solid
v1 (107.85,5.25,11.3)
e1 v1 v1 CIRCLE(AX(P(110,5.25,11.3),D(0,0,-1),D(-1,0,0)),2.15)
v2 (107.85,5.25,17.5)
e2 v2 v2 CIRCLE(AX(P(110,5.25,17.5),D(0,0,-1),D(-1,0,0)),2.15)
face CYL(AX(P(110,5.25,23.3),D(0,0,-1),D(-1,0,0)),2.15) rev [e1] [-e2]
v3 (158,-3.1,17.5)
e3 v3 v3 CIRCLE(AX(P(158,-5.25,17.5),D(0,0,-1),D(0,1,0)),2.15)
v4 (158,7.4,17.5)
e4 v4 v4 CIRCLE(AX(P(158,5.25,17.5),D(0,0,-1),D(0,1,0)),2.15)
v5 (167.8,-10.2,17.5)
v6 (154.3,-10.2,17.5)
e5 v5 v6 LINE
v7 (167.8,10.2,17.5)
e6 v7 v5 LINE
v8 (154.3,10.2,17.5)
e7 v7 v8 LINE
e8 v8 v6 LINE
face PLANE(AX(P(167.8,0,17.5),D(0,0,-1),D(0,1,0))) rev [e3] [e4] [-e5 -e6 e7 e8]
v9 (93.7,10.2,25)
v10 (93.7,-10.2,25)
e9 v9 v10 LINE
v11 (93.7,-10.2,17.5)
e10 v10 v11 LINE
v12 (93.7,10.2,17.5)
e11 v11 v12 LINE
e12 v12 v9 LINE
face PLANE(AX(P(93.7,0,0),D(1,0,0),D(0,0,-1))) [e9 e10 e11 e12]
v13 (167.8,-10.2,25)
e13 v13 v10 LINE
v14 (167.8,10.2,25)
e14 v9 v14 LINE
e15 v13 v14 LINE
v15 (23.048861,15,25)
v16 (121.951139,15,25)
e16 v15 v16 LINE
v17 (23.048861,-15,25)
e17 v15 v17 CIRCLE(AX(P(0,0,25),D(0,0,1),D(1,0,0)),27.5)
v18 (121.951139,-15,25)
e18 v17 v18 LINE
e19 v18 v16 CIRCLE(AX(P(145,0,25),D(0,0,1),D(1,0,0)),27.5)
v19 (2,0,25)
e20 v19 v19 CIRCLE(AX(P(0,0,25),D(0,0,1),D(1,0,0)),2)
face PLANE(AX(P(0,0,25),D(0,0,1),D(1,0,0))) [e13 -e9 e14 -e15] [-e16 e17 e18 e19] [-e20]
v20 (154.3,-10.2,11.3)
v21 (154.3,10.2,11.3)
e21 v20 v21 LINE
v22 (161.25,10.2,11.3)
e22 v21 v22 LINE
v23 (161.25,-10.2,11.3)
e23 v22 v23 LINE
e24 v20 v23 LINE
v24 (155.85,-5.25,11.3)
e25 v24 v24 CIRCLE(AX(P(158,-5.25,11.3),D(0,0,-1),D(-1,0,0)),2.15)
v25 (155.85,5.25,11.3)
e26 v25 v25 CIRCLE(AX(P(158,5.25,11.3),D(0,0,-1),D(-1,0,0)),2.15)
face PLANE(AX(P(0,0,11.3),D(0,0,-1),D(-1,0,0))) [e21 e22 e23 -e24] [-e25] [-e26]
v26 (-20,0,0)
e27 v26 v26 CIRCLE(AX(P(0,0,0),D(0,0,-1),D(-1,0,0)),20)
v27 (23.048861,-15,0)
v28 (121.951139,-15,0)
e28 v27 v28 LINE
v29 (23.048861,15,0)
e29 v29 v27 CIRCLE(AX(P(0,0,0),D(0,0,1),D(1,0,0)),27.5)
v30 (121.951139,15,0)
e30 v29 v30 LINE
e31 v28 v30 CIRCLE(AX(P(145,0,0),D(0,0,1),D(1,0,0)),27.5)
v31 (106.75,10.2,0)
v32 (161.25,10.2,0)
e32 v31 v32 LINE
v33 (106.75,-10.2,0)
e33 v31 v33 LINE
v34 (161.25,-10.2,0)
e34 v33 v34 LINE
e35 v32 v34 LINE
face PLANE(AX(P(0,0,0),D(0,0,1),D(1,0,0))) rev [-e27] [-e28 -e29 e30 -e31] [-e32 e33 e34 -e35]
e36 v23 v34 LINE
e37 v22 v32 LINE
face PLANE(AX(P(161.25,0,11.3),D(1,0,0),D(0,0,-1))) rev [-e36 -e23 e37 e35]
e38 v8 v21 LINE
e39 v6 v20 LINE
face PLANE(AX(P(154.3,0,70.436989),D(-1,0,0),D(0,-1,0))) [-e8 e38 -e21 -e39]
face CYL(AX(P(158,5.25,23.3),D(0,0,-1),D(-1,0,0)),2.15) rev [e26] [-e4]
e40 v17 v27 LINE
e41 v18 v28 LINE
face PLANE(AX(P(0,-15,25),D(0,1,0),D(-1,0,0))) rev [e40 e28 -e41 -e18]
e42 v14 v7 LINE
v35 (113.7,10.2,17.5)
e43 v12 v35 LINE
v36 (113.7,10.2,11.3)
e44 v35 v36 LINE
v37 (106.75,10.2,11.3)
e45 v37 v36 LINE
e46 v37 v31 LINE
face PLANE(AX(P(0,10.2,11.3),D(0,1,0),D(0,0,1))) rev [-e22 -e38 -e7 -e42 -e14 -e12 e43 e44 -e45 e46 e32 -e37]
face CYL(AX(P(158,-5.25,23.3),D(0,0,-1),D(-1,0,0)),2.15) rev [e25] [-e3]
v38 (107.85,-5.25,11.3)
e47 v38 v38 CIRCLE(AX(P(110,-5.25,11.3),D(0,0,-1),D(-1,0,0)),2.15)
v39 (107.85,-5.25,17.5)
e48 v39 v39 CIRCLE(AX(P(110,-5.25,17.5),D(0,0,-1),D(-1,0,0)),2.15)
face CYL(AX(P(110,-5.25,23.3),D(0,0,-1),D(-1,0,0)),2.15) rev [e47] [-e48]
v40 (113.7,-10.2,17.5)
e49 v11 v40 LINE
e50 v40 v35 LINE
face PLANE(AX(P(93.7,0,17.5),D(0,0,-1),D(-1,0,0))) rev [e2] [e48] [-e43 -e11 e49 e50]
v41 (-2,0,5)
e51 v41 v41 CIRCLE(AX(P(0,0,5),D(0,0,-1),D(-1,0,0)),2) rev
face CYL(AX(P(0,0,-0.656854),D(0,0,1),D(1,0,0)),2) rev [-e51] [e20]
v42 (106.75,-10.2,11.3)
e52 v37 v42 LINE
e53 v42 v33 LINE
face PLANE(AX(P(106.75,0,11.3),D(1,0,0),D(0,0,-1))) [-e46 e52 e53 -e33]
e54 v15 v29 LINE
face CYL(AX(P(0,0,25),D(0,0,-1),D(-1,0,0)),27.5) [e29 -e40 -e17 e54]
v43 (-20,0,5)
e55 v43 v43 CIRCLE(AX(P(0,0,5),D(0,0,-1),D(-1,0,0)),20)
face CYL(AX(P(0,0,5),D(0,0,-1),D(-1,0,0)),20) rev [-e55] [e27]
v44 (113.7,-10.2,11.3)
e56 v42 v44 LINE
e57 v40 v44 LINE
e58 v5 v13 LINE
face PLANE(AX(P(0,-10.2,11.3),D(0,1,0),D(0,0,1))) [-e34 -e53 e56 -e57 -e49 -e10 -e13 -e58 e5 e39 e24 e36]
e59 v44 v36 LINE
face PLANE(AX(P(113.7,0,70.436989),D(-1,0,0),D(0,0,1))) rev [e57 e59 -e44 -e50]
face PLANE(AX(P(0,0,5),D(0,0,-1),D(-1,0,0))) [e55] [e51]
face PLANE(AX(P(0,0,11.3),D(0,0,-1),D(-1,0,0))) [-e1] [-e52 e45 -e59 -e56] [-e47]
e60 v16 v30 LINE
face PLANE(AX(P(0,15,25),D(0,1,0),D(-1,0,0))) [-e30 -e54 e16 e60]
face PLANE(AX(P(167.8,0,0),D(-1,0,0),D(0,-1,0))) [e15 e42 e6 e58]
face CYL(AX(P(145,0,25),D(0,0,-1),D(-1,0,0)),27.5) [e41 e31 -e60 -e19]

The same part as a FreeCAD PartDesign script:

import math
import FreeCAD as App
import Part
import Sketcher

V = App.Vector

doc = App.newDocument("Part")
body = doc.addObject("PartDesign::Body", "Body")

# Sketch on XY plane
sketch1 = body.newObject("Sketcher::SketchObject", "Sketch")
sketch1.AttachmentSupport = (doc.getObject("XY_Plane"), [""])
sketch1.MapMode = "FlatFace"
sketch1.addGeometry(Part.LineSegment(V(23, -15, 0), V(122, -15, 0)), False)
sketch1.addGeometry(Part.ArcOfCircle(Part.Circle(V(145, 0, 0), V(0, 0, 1), 28), math.radians(-147), math.radians(0)), False)
sketch1.addGeometry(Part.ArcOfCircle(Part.Circle(V(145, 0, 0), V(0, 0, 1), 28), math.radians(0), math.radians(147)), False)
sketch1.addGeometry(Part.LineSegment(V(122, 15, 0), V(23, 15, 0)), False)
sketch1.addGeometry(Part.ArcOfCircle(Part.Circle(V(0, 0, 0), V(0, 0, 1), 28), math.radians(33), math.radians(327)), False)
sketch1.addConstraint(Sketcher.Constraint("Coincident", 0, 2, 1, 1))
sketch1.addConstraint(Sketcher.Constraint("Tangent", 1, 2, 2, 1))
sketch1.addConstraint(Sketcher.Constraint("Coincident", 2, 2, 3, 1))
sketch1.addConstraint(Sketcher.Constraint("Coincident", 3, 2, 4, 1))
sketch1.addConstraint(Sketcher.Constraint("Coincident", 4, 2, 0, 1))
sketch1.addConstraint(Sketcher.Constraint("Horizontal", 0))
sketch1.addConstraint(Sketcher.Constraint("Horizontal", 3))
sketch1.addConstraint(Sketcher.Constraint("Coincident", 4, 3, -1, 1))
sketch1.addConstraint(Sketcher.Constraint("Equal", 1, 2))
sketch1.addConstraint(Sketcher.Constraint("Equal", 2, 4))
sketch1.addConstraint(Sketcher.Constraint("Symmetric", 0, 2, 2, 2, -1))
sketch1.addConstraint(Sketcher.Constraint("PointOnObject", 1, 2, -1))
sketch1.addConstraint(Sketcher.Constraint("Radius", 1, 27.5))
sketch1.addConstraint(Sketcher.Constraint("DistanceX", -1, 1, 1, 3, 145.0))
sketch1.addConstraint(Sketcher.Constraint("DistanceY", 0, 2, -1, 1, 15.0))
pad1 = body.newObject("PartDesign::Pad", "Pad")
pad1.Profile = sketch1
pad1.Length = 25

# Sketch on XY plane
sketch2 = body.newObject("Sketcher::SketchObject", "Sketch001")
sketch2.AttachmentSupport = (doc.getObject("XY_Plane"), [""])
sketch2.MapMode = "FlatFace"
sketch2.addGeometry(Part.Circle(V(0, 0, 0), V(0, 0, 1), 20), False)
sketch2.addConstraint(Sketcher.Constraint("Coincident", 0, 3, -1, 1))
sketch2.addConstraint(Sketcher.Constraint("Diameter", 0, 40.0))
pocket1 = body.newObject("PartDesign::Pocket", "Pocket")
pocket1.Profile = sketch2
pocket1.Length = 5
pocket1.Reversed = True

# Sketch on XY plane
sketch3 = body.newObject("Sketcher::SketchObject", "Sketch002")
sketch3.AttachmentSupport = (doc.getObject("XY_Plane"), [""])
sketch3.MapMode = "FlatFace"
sketch3.AttachmentOffset = App.Placement(V(0, 0, 25), App.Rotation())
sketch3.addGeometry(Part.Circle(V(0, 0, 0), V(0, 0, 1), 2), False)
sketch3.addConstraint(Sketcher.Constraint("Coincident", 0, 3, -1, 1))
sketch3.addConstraint(Sketcher.Constraint("Diameter", 0, 4.0))
pocket2 = body.newObject("PartDesign::Pocket", "Pocket001")
pocket2.Profile = sketch3
pocket2.Length = 20

# Sketch on XY plane
sketch4 = body.newObject("Sketcher::SketchObject", "Sketch003")
sketch4.AttachmentSupport = (doc.getObject("XY_Plane"), [""])
sketch4.MapMode = "FlatFace"
sketch4.addGeometry(Part.LineSegment(V(161, 10, 0), V(161, -10, 0)), False)
sketch4.addGeometry(Part.LineSegment(V(161, -10, 0), V(107, -10, 0)), False)
sketch4.addGeometry(Part.LineSegment(V(107, -10, 0), V(107, 10, 0)), False)
sketch4.addGeometry(Part.LineSegment(V(107, 10, 0), V(161, 10, 0)), False)
sketch4.addConstraint(Sketcher.Constraint("Coincident", 0, 2, 1, 1))
sketch4.addConstraint(Sketcher.Constraint("Coincident", 1, 2, 2, 1))
sketch4.addConstraint(Sketcher.Constraint("Coincident", 2, 2, 3, 1))
sketch4.addConstraint(Sketcher.Constraint("Coincident", 3, 2, 0, 1))
sketch4.addConstraint(Sketcher.Constraint("Vertical", 0))
sketch4.addConstraint(Sketcher.Constraint("Horizontal", 1))
sketch4.addConstraint(Sketcher.Constraint("Vertical", 2))
sketch4.addConstraint(Sketcher.Constraint("Horizontal", 3))
sketch4.addConstraint(Sketcher.Constraint("DistanceX", 1, 2, 1, 1, 54.5))
sketch4.addConstraint(Sketcher.Constraint("DistanceY", 0, 2, 0, 1, 20.4))
sketch4.addConstraint(Sketcher.Constraint("DistanceY", 0, 2, -1, 1, 10.2))
sketch4.addConstraint(Sketcher.Constraint("DistanceX", -1, 1, 0, 2, 161.25))
pocket3 = body.newObject("PartDesign::Pocket", "Pocket002")
pocket3.Profile = sketch4
pocket3.Length = 11.3
pocket3.Reversed = True

# Sketch on XY plane
sketch5 = body.newObject("Sketcher::SketchObject", "Sketch004")
sketch5.AttachmentSupport = (doc.getObject("XY_Plane"), [""])
sketch5.MapMode = "FlatFace"
sketch5.AttachmentOffset = App.Placement(V(0, 0, 11.3), App.Rotation())
sketch5.addGeometry(Part.LineSegment(V(154, -10, 0), V(114, -10, 0)), False)
sketch5.addGeometry(Part.LineSegment(V(114, -10, 0), V(114, 10, 0)), False)
sketch5.addGeometry(Part.LineSegment(V(114, 10, 0), V(154, 10, 0)), False)
sketch5.addGeometry(Part.LineSegment(V(154, 10, 0), V(154, -10, 0)), False)
sketch5.addConstraint(Sketcher.Constraint("Coincident", 0, 2, 1, 1))
sketch5.addConstraint(Sketcher.Constraint("Coincident", 1, 2, 2, 1))
sketch5.addConstraint(Sketcher.Constraint("Coincident", 2, 2, 3, 1))
sketch5.addConstraint(Sketcher.Constraint("Coincident", 3, 2, 0, 1))
sketch5.addConstraint(Sketcher.Constraint("Horizontal", 0))
sketch5.addConstraint(Sketcher.Constraint("Vertical", 1))
sketch5.addConstraint(Sketcher.Constraint("Horizontal", 2))
sketch5.addConstraint(Sketcher.Constraint("Vertical", 3))
sketch5.addConstraint(Sketcher.Constraint("DistanceX", 0, 2, 0, 1, 40.6))
sketch5.addConstraint(Sketcher.Constraint("DistanceY", 1, 1, 1, 2, 20.4))
sketch5.addConstraint(Sketcher.Constraint("DistanceX", -1, 1, 0, 2, 113.7))
sketch5.addConstraint(Sketcher.Constraint("DistanceY", 0, 2, -1, 1, 10.2))
pocket4 = body.newObject("PartDesign::Pocket", "Pocket003")
pocket4.Profile = sketch5
pocket4.Length = 13.7
pocket4.Reversed = True

# Sketch on YZ plane
sketch6 = body.newObject("Sketcher::SketchObject", "Sketch005")
sketch6.AttachmentSupport = (doc.getObject("YZ_Plane"), [""])
sketch6.MapMode = "FlatFace"
sketch6.AttachmentOffset = App.Placement(V(0, 0, 154.3), App.Rotation())
sketch6.addGeometry(Part.LineSegment(V(10, 18, 0), V(-10, 18, 0)), False)
sketch6.addGeometry(Part.LineSegment(V(-10, 18, 0), V(-10, 25, 0)), False)
sketch6.addGeometry(Part.LineSegment(V(-10, 25, 0), V(10, 25, 0)), False)
sketch6.addGeometry(Part.LineSegment(V(10, 25, 0), V(10, 18, 0)), False)
sketch6.addConstraint(Sketcher.Constraint("Coincident", 0, 2, 1, 1))
sketch6.addConstraint(Sketcher.Constraint("Coincident", 1, 2, 2, 1))
sketch6.addConstraint(Sketcher.Constraint("Coincident", 2, 2, 3, 1))
sketch6.addConstraint(Sketcher.Constraint("Coincident", 3, 2, 0, 1))
sketch6.addConstraint(Sketcher.Constraint("Horizontal", 0))
sketch6.addConstraint(Sketcher.Constraint("Vertical", 1))
sketch6.addConstraint(Sketcher.Constraint("Horizontal", 2))
sketch6.addConstraint(Sketcher.Constraint("Vertical", 3))
sketch6.addConstraint(Sketcher.Constraint("DistanceX", 0, 2, 0, 1, 20.4))
sketch6.addConstraint(Sketcher.Constraint("DistanceY", 1, 1, 1, 2, 7.5))
sketch6.addConstraint(Sketcher.Constraint("DistanceY", -1, 1, 1, 2, 25.0))
sketch6.addConstraint(Sketcher.Constraint("DistanceX", 0, 2, -1, 1, 10.2))
pocket5 = body.newObject("PartDesign::Pocket", "Pocket004")
pocket5.Profile = sketch6
pocket5.Length = 13.5
pocket5.Reversed = True

# Sketch on YZ plane
sketch7 = body.newObject("Sketcher::SketchObject", "Sketch006")
sketch7.AttachmentSupport = (doc.getObject("YZ_Plane"), [""])
sketch7.MapMode = "FlatFace"
sketch7.AttachmentOffset = App.Placement(V(0, 0, 113.7), App.Rotation())
sketch7.addGeometry(Part.LineSegment(V(10, 25, 0), V(-10, 25, 0)), False)
sketch7.addGeometry(Part.LineSegment(V(-10, 25, 0), V(-10, 18, 0)), False)
sketch7.addGeometry(Part.LineSegment(V(-10, 18, 0), V(10, 18, 0)), False)
sketch7.addGeometry(Part.LineSegment(V(10, 18, 0), V(10, 25, 0)), False)
sketch7.addConstraint(Sketcher.Constraint("Coincident", 0, 2, 1, 1))
sketch7.addConstraint(Sketcher.Constraint("Coincident", 1, 2, 2, 1))
sketch7.addConstraint(Sketcher.Constraint("Coincident", 2, 2, 3, 1))
sketch7.addConstraint(Sketcher.Constraint("Coincident", 3, 2, 0, 1))
sketch7.addConstraint(Sketcher.Constraint("Horizontal", 0))
sketch7.addConstraint(Sketcher.Constraint("Vertical", 1))
sketch7.addConstraint(Sketcher.Constraint("Horizontal", 2))
sketch7.addConstraint(Sketcher.Constraint("Vertical", 3))
sketch7.addConstraint(Sketcher.Constraint("DistanceX", 0, 2, 0, 1, 20.4))
sketch7.addConstraint(Sketcher.Constraint("DistanceY", 1, 2, 1, 1, 7.5))
sketch7.addConstraint(Sketcher.Constraint("DistanceY", -1, 1, 0, 2, 25.0))
sketch7.addConstraint(Sketcher.Constraint("DistanceX", 0, 2, -1, 1, 10.2))
pocket6 = body.newObject("PartDesign::Pocket", "Pocket005")
pocket6.Profile = sketch7
pocket6.Length = 20

# Sketch on XY plane
sketch8 = body.newObject("Sketcher::SketchObject", "Sketch007")
sketch8.AttachmentSupport = (doc.getObject("XY_Plane"), [""])
sketch8.MapMode = "FlatFace"
sketch8.AttachmentOffset = App.Placement(V(0, 0, 11.3), App.Rotation())
sketch8.addGeometry(Part.ArcOfCircle(Part.Circle(V(110, 5.2, 0), V(0, 0, 1), 2.1), math.radians(0), math.radians(180)), False)
sketch8.addGeometry(Part.ArcOfCircle(Part.Circle(V(110, 5.2, 0), V(0, 0, 1), 2.1), math.radians(-90), math.radians(0)), False)
sketch8.addGeometry(Part.ArcOfCircle(Part.Circle(V(110, 5.2, 0), V(0, 0, 1), 2.1), math.radians(180), math.radians(270)), False)
sketch8.addGeometry(Part.ArcOfCircle(Part.Circle(V(110, -5.2, 0), V(0, 0, 1), 2.1), math.radians(0), math.radians(90)), False)
sketch8.addGeometry(Part.ArcOfCircle(Part.Circle(V(110, -5.2, 0), V(0, 0, 1), 2.1), math.radians(180), math.radians(360)), False)
sketch8.addGeometry(Part.ArcOfCircle(Part.Circle(V(110, -5.2, 0), V(0, 0, 1), 2.1), math.radians(90), math.radians(180)), False)
sketch8.addGeometry(Part.ArcOfCircle(Part.Circle(V(158, 5.2, 0), V(0, 0, 1), 2.1), math.radians(-90), math.radians(180)), False)
sketch8.addGeometry(Part.ArcOfCircle(Part.Circle(V(158, 5.2, 0), V(0, 0, 1), 2.1), math.radians(180), math.radians(270)), False)
sketch8.addGeometry(Part.Circle(V(158, -5.2, 0), V(0, 0, 1), 2.1), False)
sketch8.addConstraint(Sketcher.Constraint("Tangent", 0, 1, 1, 2))
sketch8.addConstraint(Sketcher.Constraint("Tangent", 1, 1, 2, 2))
sketch8.addConstraint(Sketcher.Constraint("Tangent", 2, 1, 0, 2))
sketch8.addConstraint(Sketcher.Constraint("Tangent", 3, 1, 4, 2))
sketch8.addConstraint(Sketcher.Constraint("Tangent", 4, 1, 5, 2))
sketch8.addConstraint(Sketcher.Constraint("Tangent", 5, 1, 3, 2))
sketch8.addConstraint(Sketcher.Constraint("Tangent", 6, 1, 7, 2))
sketch8.addConstraint(Sketcher.Constraint("Coincident", 7, 1, 6, 2))
sketch8.addConstraint(Sketcher.Constraint("Equal", 2, 3))
sketch8.addConstraint(Sketcher.Constraint("Equal", 5, 6))
sketch8.addConstraint(Sketcher.Constraint("Equal", 7, 8))
sketch8.addConstraint(Sketcher.Constraint("Symmetric", 0, 3, 3, 3, -1))
sketch8.addConstraint(Sketcher.Constraint("Symmetric", 6, 3, 8, 3, -1))
sketch8.addConstraint(Sketcher.Constraint("Horizontal", 2, 3, 6, 3))
sketch8.addConstraint(Sketcher.Constraint("Horizontal", 7, 3, 0, 1))
sketch8.addConstraint(Sketcher.Constraint("Horizontal", 0, 1, 2, 1))
sketch8.addConstraint(Sketcher.Constraint("Horizontal", 8, 3, 3, 1))
sketch8.addConstraint(Sketcher.Constraint("Horizontal", 3, 1, 4, 1))
sketch8.addConstraint(Sketcher.Constraint("Horizontal", 2, 1, 7, 1))
sketch8.addConstraint(Sketcher.Constraint("Vertical", 5, 3, 1, 1))
sketch8.addConstraint(Sketcher.Constraint("Vertical", 1, 1, 5, 1))
sketch8.addConstraint(Sketcher.Constraint("Vertical", 8, 3, 6, 1))
sketch8.addConstraint(Sketcher.Constraint("Diameter", 8, 4.3))
sketch8.addConstraint(Sketcher.Constraint("DistanceX", -1, 1, 0, 3, 110.0))
sketch8.addConstraint(Sketcher.Constraint("DistanceX", -1, 1, 6, 3, 158.0))
sketch8.addConstraint(Sketcher.Constraint("DistanceY", -1, 1, 1, 1, 3.1))
pocket7 = body.newObject("PartDesign::Pocket", "Pocket006")
pocket7.Profile = sketch8
pocket7.Length = 12
pocket7.Reversed = True

doc.recompute()
